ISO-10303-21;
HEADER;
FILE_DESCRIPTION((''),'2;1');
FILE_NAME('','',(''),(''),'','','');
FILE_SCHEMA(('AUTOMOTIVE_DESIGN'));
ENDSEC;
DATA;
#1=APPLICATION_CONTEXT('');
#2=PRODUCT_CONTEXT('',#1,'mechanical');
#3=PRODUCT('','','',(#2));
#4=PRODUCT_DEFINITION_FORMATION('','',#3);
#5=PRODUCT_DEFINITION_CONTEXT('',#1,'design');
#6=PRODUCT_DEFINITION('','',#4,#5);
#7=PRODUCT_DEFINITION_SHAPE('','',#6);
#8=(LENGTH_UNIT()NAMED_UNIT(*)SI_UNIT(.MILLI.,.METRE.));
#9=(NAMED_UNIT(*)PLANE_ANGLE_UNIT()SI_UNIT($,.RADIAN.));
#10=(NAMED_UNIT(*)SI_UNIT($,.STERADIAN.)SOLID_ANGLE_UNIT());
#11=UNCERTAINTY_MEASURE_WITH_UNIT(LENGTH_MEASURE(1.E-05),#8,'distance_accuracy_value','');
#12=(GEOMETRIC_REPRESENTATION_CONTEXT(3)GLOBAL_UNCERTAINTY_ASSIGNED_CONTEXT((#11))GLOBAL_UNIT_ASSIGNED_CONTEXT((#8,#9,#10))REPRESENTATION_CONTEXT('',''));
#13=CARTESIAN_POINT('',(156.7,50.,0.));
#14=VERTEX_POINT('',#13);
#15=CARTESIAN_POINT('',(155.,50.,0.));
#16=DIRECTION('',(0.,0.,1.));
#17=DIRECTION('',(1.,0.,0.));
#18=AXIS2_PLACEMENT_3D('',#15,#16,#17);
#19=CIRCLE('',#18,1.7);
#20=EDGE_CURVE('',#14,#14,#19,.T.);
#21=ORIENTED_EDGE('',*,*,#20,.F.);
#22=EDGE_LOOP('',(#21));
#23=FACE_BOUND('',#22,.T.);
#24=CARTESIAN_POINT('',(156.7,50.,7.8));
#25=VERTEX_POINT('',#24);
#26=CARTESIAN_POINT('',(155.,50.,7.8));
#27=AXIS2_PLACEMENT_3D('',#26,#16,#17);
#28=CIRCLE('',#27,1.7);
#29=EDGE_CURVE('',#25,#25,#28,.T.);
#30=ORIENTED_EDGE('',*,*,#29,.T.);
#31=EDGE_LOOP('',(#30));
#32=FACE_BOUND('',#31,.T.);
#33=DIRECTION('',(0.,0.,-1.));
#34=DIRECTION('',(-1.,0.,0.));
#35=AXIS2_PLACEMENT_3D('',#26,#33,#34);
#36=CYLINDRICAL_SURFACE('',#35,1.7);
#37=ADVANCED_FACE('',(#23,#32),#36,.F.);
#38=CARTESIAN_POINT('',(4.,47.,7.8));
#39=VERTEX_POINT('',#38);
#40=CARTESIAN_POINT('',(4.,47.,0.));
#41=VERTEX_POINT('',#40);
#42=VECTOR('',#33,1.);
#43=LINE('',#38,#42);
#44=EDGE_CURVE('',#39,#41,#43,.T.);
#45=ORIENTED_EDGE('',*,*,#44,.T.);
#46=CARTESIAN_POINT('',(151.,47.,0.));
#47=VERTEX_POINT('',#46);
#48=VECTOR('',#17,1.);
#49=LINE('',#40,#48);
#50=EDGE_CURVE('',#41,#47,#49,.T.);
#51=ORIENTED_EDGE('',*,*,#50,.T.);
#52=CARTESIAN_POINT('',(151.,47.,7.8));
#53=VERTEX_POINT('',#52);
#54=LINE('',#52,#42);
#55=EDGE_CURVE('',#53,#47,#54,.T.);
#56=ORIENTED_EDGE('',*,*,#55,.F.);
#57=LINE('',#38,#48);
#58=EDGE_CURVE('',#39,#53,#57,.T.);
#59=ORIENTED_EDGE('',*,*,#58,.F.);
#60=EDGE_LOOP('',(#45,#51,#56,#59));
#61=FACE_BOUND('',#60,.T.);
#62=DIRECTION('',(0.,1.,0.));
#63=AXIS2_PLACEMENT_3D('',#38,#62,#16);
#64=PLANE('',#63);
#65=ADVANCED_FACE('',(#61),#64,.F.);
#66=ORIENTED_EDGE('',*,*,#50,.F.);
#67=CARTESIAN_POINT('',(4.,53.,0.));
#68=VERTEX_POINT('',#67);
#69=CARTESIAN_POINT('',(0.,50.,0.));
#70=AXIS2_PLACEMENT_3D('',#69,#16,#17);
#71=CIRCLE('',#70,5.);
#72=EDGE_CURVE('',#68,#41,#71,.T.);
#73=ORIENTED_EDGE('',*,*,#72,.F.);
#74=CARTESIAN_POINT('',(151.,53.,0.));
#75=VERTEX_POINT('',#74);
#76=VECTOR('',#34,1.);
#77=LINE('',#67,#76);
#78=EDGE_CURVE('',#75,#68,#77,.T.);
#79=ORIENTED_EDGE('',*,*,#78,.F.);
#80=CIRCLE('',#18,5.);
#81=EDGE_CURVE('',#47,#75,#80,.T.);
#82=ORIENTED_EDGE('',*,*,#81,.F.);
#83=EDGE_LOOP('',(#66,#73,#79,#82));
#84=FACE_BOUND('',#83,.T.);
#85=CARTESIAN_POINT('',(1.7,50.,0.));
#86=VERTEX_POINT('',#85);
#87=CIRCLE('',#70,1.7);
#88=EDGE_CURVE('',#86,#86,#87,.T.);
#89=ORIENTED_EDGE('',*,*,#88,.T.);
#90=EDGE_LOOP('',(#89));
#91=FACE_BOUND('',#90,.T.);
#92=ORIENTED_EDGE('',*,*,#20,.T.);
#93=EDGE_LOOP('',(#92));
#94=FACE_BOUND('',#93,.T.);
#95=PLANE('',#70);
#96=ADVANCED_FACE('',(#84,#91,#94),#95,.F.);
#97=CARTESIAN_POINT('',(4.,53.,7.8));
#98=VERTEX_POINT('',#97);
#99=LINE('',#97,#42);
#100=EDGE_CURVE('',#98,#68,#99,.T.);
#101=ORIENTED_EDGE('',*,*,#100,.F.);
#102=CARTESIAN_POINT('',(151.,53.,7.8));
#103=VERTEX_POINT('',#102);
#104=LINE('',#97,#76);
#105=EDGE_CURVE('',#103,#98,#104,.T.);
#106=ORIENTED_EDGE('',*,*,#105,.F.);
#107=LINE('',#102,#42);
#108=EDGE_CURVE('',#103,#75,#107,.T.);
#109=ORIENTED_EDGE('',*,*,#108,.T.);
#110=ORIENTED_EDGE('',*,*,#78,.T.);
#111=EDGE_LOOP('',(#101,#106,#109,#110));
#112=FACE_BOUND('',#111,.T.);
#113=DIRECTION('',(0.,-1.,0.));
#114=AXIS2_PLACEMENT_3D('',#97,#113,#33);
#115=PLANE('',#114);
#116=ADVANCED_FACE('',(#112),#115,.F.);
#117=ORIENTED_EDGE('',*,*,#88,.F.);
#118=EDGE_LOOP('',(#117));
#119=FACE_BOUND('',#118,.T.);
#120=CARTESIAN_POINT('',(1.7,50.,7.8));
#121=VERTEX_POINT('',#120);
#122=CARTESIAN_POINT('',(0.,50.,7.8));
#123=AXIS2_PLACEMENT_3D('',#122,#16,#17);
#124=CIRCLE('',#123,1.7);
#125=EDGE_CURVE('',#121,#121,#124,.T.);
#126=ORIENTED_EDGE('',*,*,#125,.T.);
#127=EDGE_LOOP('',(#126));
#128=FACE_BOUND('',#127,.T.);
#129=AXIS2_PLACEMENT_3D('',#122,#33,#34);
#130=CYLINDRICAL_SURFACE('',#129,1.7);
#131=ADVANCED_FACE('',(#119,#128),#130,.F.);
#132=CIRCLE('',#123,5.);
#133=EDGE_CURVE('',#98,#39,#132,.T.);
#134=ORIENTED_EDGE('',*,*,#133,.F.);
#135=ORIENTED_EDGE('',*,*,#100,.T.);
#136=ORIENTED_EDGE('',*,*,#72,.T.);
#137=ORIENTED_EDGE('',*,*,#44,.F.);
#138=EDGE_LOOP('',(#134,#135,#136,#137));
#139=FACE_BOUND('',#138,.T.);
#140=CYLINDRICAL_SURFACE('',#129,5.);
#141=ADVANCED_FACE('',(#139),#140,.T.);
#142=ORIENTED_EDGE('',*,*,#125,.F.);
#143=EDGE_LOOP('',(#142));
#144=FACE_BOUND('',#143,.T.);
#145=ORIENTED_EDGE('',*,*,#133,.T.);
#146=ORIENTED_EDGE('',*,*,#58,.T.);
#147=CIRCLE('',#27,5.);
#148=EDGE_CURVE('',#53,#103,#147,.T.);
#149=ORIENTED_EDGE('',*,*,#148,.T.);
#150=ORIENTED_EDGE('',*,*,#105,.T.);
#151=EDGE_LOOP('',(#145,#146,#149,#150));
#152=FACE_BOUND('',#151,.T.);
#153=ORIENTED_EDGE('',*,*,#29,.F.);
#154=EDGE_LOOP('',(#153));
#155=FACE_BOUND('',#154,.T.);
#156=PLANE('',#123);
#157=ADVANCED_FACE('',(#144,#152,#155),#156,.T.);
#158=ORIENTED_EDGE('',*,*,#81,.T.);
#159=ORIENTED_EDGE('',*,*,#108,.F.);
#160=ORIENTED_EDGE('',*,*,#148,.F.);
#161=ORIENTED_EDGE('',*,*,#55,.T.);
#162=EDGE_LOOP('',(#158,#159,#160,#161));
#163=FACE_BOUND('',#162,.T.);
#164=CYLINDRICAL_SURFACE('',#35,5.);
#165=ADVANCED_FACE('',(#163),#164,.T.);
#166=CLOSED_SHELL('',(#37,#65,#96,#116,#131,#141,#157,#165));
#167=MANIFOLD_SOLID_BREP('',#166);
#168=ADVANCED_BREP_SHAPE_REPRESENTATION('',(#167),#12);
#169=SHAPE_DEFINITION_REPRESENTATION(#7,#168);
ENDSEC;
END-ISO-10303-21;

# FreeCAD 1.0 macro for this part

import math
import FreeCAD as App
import Part
import Sketcher
from FreeCAD import Vector
Q = App.Units.Quantity

doc = App.newDocument("Part")
body = doc.addObject("PartDesign::Body", "Body")

# Sketch on XY plane
sketch1 = doc.addObject("Sketcher::SketchObject", "Sketch")
body.addObject(sketch1)
sketch1.AttachmentSupport = (doc.XY_Plane, [""])
sketch1.MapMode = "FlatFace"
sketch1.addGeometry([
    Part.LineSegment(Vector(151, 53, 0), Vector(4, 53, 0)),  # 0
    Part.ArcOfCircle(Part.Circle(Vector(0, 50, 0), Vector(0, 0, 1), 5), math.radians(37), math.radians(323)),  # 1
    Part.LineSegment(Vector(4, 47, 0), Vector(151, 47, 0)),  # 2
    Part.ArcOfCircle(Part.Circle(Vector(155, 50, 0), Vector(0, 0, 1), 5), math.radians(-143), math.radians(143)),  # 3
    Part.Circle(Vector(155, 50, 0), Vector(0, 0, 1), 1.7),  # 4
    Part.Circle(Vector(0, 50, 0), Vector(0, 0, 1), 1.7),  # 5
], False)
sketch1.addConstraint([
    Sketcher.Constraint("Coincident", 0, 2, 1, 1),
    Sketcher.Constraint("Coincident", 1, 2, 2, 1),
    Sketcher.Constraint("Coincident", 2, 2, 3, 1),
    Sketcher.Constraint("Coincident", 3, 2, 0, 1),
    Sketcher.Constraint("Horizontal", 0),
    Sketcher.Constraint("Horizontal", 2),
    Sketcher.Constraint("Coincident", 4, 3, 3, 3),
    Sketcher.Constraint("Coincident", 5, 3, 1, 3),
    Sketcher.Constraint("Equal", 1, 3),
    Sketcher.Constraint("Equal", 4, 5),
    Sketcher.Constraint("PointOnObject", 1, 3, -2),
    Sketcher.Constraint("Horizontal", 1, 3, 3, 3),
    Sketcher.Constraint("Vertical", 0, 2, 1, 2),
    Sketcher.Constraint("Radius", 1, Q("5 mm")),
    Sketcher.Constraint("Diameter", 4, Q("3.4 mm")),
    Sketcher.Constraint("DistanceX", 0, 2, 0, 1, Q("147 mm")),
    Sketcher.Constraint("DistanceY", -1, 1, 1, 3, Q("50 mm")),
    Sketcher.Constraint("DistanceX", -1, 1, 3, 3, Q("155 mm")),
])
pad1 = doc.addObject("PartDesign::Pad", "Pad")
body.addObject(pad1)
pad1.Profile = sketch1
pad1.Length = 7.8

doc.recompute()
